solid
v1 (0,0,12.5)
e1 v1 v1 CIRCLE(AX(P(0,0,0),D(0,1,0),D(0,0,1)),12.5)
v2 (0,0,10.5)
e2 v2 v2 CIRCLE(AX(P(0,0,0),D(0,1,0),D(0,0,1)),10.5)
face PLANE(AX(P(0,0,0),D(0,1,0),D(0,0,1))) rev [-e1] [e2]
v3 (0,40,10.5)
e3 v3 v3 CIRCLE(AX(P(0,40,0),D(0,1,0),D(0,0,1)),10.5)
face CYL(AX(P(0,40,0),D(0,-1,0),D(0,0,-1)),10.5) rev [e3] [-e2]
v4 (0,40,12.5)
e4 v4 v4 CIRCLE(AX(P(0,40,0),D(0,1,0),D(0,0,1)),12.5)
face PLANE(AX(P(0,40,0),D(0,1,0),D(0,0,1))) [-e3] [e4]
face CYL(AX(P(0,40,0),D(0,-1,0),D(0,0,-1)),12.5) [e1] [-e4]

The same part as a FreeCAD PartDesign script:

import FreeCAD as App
import Part
import Sketcher
from FreeCAD import Vector
Q = App.Units.Quantity

doc = App.newDocument("Part")
body = doc.addObject("PartDesign::Body", "Body")

# Sketch on XZ plane
sketch1 = doc.addObject("Sketcher::SketchObject", "Sketch")
body.addObject(sketch1)
sketch1.AttachmentSupport = (doc.XZ_Plane, [""])
sketch1.MapMode = "FlatFace"
sketch1.addGeometry([
    Part.Circle(Vector(0, 0, 0), Vector(0, 0, 1), 12),
    Part.Circle(Vector(0, 0, 0), Vector(0, 0, 1), 10),
], False)
sketch1.addConstraint([
    Sketcher.Constraint("Coincident", 0, 3, -1, 1),
    Sketcher.Constraint("Coincident", 1, 3, -1, 1),
    Sketcher.Constraint("Diameter", 0, Q("25 mm")),
    Sketcher.Constraint("Diameter", 1, Q("21 mm")),
])
pad1 = doc.addObject("PartDesign::Pad", "Pad")
body.addObject(pad1)
pad1.Profile = sketch1
pad1.Length = 40
pad1.Reversed = True

doc.recompute()
